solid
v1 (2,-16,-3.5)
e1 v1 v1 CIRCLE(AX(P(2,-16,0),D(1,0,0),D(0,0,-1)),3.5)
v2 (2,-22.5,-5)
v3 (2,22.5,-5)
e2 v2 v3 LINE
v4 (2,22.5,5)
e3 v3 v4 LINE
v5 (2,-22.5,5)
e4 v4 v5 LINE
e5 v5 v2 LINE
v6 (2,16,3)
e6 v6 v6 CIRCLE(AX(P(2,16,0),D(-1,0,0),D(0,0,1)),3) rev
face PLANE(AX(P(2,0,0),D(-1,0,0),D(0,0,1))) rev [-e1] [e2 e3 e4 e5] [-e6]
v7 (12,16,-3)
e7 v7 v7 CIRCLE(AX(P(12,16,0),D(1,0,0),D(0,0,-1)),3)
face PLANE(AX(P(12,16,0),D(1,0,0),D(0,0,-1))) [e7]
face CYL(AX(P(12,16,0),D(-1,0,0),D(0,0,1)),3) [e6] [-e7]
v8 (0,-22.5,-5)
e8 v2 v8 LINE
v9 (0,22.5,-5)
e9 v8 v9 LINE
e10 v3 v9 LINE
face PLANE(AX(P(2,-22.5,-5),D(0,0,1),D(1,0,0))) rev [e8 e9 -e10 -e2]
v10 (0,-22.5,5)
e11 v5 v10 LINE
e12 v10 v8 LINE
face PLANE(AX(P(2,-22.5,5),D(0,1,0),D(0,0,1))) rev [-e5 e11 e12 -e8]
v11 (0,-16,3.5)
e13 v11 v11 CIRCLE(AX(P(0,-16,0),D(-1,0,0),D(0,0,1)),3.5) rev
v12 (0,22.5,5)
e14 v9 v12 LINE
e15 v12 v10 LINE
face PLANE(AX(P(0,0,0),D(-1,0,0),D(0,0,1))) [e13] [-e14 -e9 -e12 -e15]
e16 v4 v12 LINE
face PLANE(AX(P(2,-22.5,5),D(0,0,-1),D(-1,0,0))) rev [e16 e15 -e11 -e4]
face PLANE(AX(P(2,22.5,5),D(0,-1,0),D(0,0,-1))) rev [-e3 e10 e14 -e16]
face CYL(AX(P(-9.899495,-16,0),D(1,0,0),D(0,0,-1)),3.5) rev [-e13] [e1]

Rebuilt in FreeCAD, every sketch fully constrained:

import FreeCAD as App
import Part
import Sketcher
Q = App.Units.Quantity

doc = App.newDocument("Part")
params = doc.addObject("Spreadsheet::Sheet", "Params")
for row, (alias, value) in enumerate([
    ("sketch1_width", "45 mm"),
    ("sketch1_height", "10 mm"),
    ("pad1_length", "2 mm"),
    ("sketch2_diameter", "7 mm"),
    ("pocket1_length", "2 mm"),
    ("sketch3_diameter", "6 mm"),
    ("pad2_length", "10 mm"),
], start=1):
    params.set(f"A{row}", alias)
    params.set(f"B{row}", "=" + value)
    params.setAlias(f"B{row}", alias)

body = doc.addObject("PartDesign::Body", "Body")

# Sketch on YZ plane
sketch1 = body.newObject("Sketcher::SketchObject", "Sketch")
sketch1.AttachmentSupport = (doc.getObject("YZ_Plane"), [""])
sketch1.MapMode = "FlatFace"
sketch1.addGeometry(Part.LineSegment(App.Vector(22, 5, 0), App.Vector(-22, 5, 0)), False)
sketch1.addGeometry(Part.LineSegment(App.Vector(-22, 5, 0), App.Vector(-22, -5, 0)), False)
sketch1.addGeometry(Part.LineSegment(App.Vector(-22, -5, 0), App.Vector(22, -5, 0)), False)
sketch1.addGeometry(Part.LineSegment(App.Vector(22, -5, 0), App.Vector(22, 5, 0)), False)
sketch1.addConstraint(Sketcher.Constraint("Coincident", 0, 2, 1, 1))
sketch1.addConstraint(Sketcher.Constraint("Coincident", 1, 2, 2, 1))
sketch1.addConstraint(Sketcher.Constraint("Coincident", 2, 2, 3, 1))
sketch1.addConstraint(Sketcher.Constraint("Coincident", 3, 2, 0, 1))
sketch1.addConstraint(Sketcher.Constraint("Horizontal", 0))
sketch1.addConstraint(Sketcher.Constraint("Vertical", 1))
sketch1.addConstraint(Sketcher.Constraint("Horizontal", 2))
sketch1.addConstraint(Sketcher.Constraint("Vertical", 3))
sketch1.addConstraint(Sketcher.Constraint("Symmetric", 0, 2, 2, 2, -1, 1))
sketch1.addConstraint(Sketcher.Constraint("DistanceX", 0, 2, 0, 1, Q("45 mm")))
sketch1.addConstraint(Sketcher.Constraint("DistanceY", 1, 2, 1, 1, Q("10 mm")))
sketch1.setExpression("Constraints[9]", "Params.sketch1_width")
sketch1.setExpression("Constraints[10]", "Params.sketch1_height")
pad1 = body.newObject("PartDesign::Pad", "Pad")
pad1.Profile = sketch1
pad1.setExpression("Length", "Params.pad1_length")

# Sketch on YZ plane
sketch2 = body.newObject("Sketcher::SketchObject", "Sketch001")
sketch2.AttachmentSupport = (doc.getObject("YZ_Plane"), [""])
sketch2.MapMode = "FlatFace"
sketch2.AttachmentOffset = App.Placement(App.Vector(0, 0, 2), App.Rotation())
sketch2.addGeometry(Part.Circle(App.Vector(-16, 0, 0), App.Vector(0, 0, 1), 3.5), False)
sketch2.addConstraint(Sketcher.Constraint("PointOnObject", 0, 3, -1))
sketch2.addConstraint(Sketcher.Constraint("Diameter", 0, Q("7 mm")))
sketch2.addConstraint(Sketcher.Constraint("DistanceX", 0, 3, -1, 1, Q("16 mm")))
sketch2.setExpression("Constraints[1]", "Params.sketch2_diameter")
pocket1 = body.newObject("PartDesign::Pocket", "Pocket")
pocket1.Profile = sketch2
pocket1.setExpression("Length", "Params.pocket1_length")

# Sketch on YZ plane
sketch3 = body.newObject("Sketcher::SketchObject", "Sketch002")
sketch3.AttachmentSupport = (doc.getObject("YZ_Plane"), [""])
sketch3.MapMode = "FlatFace"
sketch3.AttachmentOffset = App.Placement(App.Vector(0, 0, 2), App.Rotation())
sketch3.addGeometry(Part.Circle(App.Vector(16, 0, 0), App.Vector(0, 0, 1), 3), False)
sketch3.addConstraint(Sketcher.Constraint("PointOnObject", 0, 3, -1))
sketch3.addConstraint(Sketcher.Constraint("Diameter", 0, Q("6 mm")))
sketch3.addConstraint(Sketcher.Constraint("DistanceX", -1, 1, 0, 3, Q("16 mm")))
sketch3.setExpression("Constraints[1]", "Params.sketch3_diameter")
pad2 = body.newObject("PartDesign::Pad", "Pad001")
pad2.Profile = sketch3
pad2.setExpression("Length", "Params.pad2_length")

doc.recompute()
